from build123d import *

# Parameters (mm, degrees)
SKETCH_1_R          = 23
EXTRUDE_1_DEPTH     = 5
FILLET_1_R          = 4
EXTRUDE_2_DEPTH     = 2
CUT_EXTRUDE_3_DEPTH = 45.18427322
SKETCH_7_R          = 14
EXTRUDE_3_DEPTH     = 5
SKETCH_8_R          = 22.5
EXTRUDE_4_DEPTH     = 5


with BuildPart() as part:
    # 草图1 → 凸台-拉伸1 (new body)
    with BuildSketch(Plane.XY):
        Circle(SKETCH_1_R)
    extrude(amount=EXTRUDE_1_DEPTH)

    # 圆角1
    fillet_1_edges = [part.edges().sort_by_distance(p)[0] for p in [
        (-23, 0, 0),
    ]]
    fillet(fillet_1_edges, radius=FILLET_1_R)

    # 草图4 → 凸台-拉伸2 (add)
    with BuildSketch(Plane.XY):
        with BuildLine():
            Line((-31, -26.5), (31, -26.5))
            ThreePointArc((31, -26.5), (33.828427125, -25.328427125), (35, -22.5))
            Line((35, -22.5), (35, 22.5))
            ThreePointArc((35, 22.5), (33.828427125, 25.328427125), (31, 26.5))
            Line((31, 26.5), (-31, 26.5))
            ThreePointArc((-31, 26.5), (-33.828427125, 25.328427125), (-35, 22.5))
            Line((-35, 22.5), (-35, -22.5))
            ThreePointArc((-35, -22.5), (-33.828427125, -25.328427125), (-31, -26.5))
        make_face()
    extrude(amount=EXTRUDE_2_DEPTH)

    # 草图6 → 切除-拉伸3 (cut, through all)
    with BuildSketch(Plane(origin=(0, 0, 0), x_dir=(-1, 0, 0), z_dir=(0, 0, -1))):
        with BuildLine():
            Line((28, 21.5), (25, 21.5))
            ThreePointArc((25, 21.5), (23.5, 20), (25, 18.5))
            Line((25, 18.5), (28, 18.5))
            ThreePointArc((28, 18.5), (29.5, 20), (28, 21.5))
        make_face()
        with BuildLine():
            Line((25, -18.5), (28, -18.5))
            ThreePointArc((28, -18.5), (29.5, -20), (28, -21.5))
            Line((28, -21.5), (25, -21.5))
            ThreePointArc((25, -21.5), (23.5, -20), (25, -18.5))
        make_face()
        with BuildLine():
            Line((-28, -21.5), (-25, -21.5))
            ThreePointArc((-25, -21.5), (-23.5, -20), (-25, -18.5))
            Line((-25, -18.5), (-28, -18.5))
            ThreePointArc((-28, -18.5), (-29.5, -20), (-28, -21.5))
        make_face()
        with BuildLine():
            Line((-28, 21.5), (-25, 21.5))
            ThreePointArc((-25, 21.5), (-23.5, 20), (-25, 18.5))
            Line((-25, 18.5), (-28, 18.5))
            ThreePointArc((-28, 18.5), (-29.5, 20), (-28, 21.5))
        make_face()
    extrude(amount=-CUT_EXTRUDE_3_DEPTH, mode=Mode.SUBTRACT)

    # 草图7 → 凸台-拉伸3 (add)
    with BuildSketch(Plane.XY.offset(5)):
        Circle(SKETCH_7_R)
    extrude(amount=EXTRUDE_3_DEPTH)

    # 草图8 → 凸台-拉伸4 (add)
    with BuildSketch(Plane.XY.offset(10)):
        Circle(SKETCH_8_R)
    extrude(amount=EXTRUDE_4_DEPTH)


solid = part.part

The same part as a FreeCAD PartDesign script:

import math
import FreeCAD as App
import Part
import Sketcher
from FreeCAD import Vector


def edges_at(feature, points):
    """Names of the edges that pass closest to the given points."""
    edges = feature.Shape.Edges
    near = lambda p: min(range(len(edges)), key=lambda i: edges[i].distToShape(Part.Vertex(*p))[0])
    return sorted({f"Edge{near(p) + 1}" for p in points})

doc = App.newDocument("Part")
params = doc.addObject("Spreadsheet::Sheet", "Params")
for row, (alias, value) in enumerate([
    ("sketch1_diameter", "46 mm"),
    ("pad1_length", "5 mm"),
    ("fillet_radius", "4 mm"),
    ("sketch2_radius", "4 mm"),
    ("sketch2_width", "62 mm"),
    ("sketch2_height", "45 mm"),
    ("pad2_length", "2 mm"),
    ("sketch3_radius", "1.5 mm"),
    ("sketch3_width", "3 mm"),
    ("sketch4_diameter", "28 mm"),
    ("pad3_length", "5 mm"),
    ("sketch5_diameter", "45 mm"),
    ("pad4_length", "5 mm"),
], start=1):
    params.set(f"A{row}", alias)
    params.set(f"B{row}", "=" + value)
    params.setAlias(f"B{row}", alias)

body = doc.addObject("PartDesign::Body", "Body")

sketch1 = body.newObject("Sketcher::SketchObject", "Sketch")
sketch1.AttachmentSupport = (doc.getObject("XY_Plane"), [""])
sketch1.MapMode = "FlatFace"
sketch1.addGeometry(Part.Circle(Vector(0, 0, 0), Vector(0, 0, 1), 23), False)
sketch1.addConstraint([
    Sketcher.Constraint("Coincident", 0, 3, -1, 1),
    Sketcher.Constraint("Diameter", 0, 46.0),
])
sketch1.setExpression("Constraints[1]", "Params.sketch1_diameter")
pad1 = body.newObject("PartDesign::Pad", "Pad")
pad1.Profile = sketch1
pad1.setExpression("Length", "Params.pad1_length")
doc.recompute()

fillet = body.newObject("PartDesign::Fillet", "Fillet")
fillet.Base = (pad1, edges_at(pad1, [(-23, 0, 0)]))
fillet.setExpression("Radius", "Params.fillet_radius")

sketch2 = body.newObject("Sketcher::SketchObject", "Sketch001")
sketch2.AttachmentSupport = (doc.getObject("XY_Plane"), [""])
sketch2.MapMode = "FlatFace"
sketch2.addGeometry([
    Part.LineSegment(Vector(-31, -26.5, 0), Vector(31, -26.5, 0)),
    Part.ArcOfCircle(Part.Circle(Vector(31, -22.5, 0), Vector(0, 0, 1), 4), math.radians(-90), math.radians(0)),
    Part.LineSegment(Vector(35, -22.5, 0), Vector(35, 22.5, 0)),
    Part.ArcOfCircle(Part.Circle(Vector(31, 22.5, 0), Vector(0, 0, 1), 4), math.radians(0), math.radians(90)),
    Part.LineSegment(Vector(31, 26.5, 0), Vector(-31, 26.5, 0)),
    Part.ArcOfCircle(Part.Circle(Vector(-31, 22.5, 0), Vector(0, 0, 1), 4), math.radians(90), math.radians(180)),
    Part.LineSegment(Vector(-35, 22.5, 0), Vector(-35, -22.5, 0)),
    Part.ArcOfCircle(Part.Circle(Vector(-31, -22.5, 0), Vector(0, 0, 1), 4), math.radians(180), math.radians(270)),
], False)
sketch2.addConstraint([
    Sketcher.Constraint("Tangent", 0, 2, 1, 1),
    Sketcher.Constraint("Tangent", 1, 2, 2, 1),
    Sketcher.Constraint("Tangent", 2, 2, 3, 1),
    Sketcher.Constraint("Tangent", 3, 2, 4, 1),
    Sketcher.Constraint("Tangent", 4, 2, 5, 1),
    Sketcher.Constraint("Tangent", 5, 2, 6, 1),
    Sketcher.Constraint("Tangent", 6, 2, 7, 1),
    Sketcher.Constraint("Tangent", 7, 2, 0, 1),
    Sketcher.Constraint("Horizontal", 0),
    Sketcher.Constraint("Vertical", 2),
    Sketcher.Constraint("Horizontal", 4),
    Sketcher.Constraint("Vertical", 6),
    Sketcher.Constraint("Equal", 1, 3),
    Sketcher.Constraint("Equal", 3, 5),
    Sketcher.Constraint("Equal", 5, 7),
    Sketcher.Constraint("Symmetric", 1, 3, 5, 3, -1, 1),
    Sketcher.Constraint("Radius", 1, 4.0),
    Sketcher.Constraint("DistanceX", 0, 1, 0, 2, 62.0),
    Sketcher.Constraint("DistanceY", 2, 1, 2, 2, 45.0),
])
sketch2.setExpression("Constraints[16]", "Params.sketch2_radius")
sketch2.setExpression("Constraints[17]", "Params.sketch2_width")
sketch2.setExpression("Constraints[18]", "Params.sketch2_height")
pad2 = body.newObject("PartDesign::Pad", "Pad001")
pad2.Profile = sketch2
pad2.setExpression("Length", "Params.pad2_length")

sketch3 = body.newObject("Sketcher::SketchObject", "Sketch002")
sketch3.AttachmentSupport = (doc.getObject("XY_Plane"), [""])
sketch3.MapMode = "FlatFace"
sketch3.addGeometry([
    Part.LineSegment(Vector(-28, 21.5, 0), Vector(-25, 21.5, 0)),
    Part.ArcOfCircle(Part.Circle(Vector(-25, 20, 0), Vector(0, 0, 1), 1.5), math.radians(-90), math.radians(90)),
    Part.LineSegment(Vector(-25, 18.5, 0), Vector(-28, 18.5, 0)),
    Part.ArcOfCircle(Part.Circle(Vector(-28, 20, 0), Vector(0, 0, 1), 1.5), math.radians(90), math.radians(270)),
    Part.LineSegment(Vector(-28, -18.5, 0), Vector(-25, -18.5, 0)),
    Part.ArcOfCircle(Part.Circle(Vector(-25, -20, 0), Vector(0, 0, 1), 1.5), math.radians(-90), math.radians(90)),
    Part.LineSegment(Vector(-25, -21.5, 0), Vector(-28, -21.5, 0)),
    Part.ArcOfCircle(Part.Circle(Vector(-28, -20, 0), Vector(0, 0, 1), 1.5), math.radians(90), math.radians(270)),
    Part.LineSegment(Vector(28, -21.5, 0), Vector(25, -21.5, 0)),
    Part.ArcOfCircle(Part.Circle(Vector(25, -20, 0), Vector(0, 0, 1), 1.5), math.radians(90), math.radians(270)),
    Part.LineSegment(Vector(25, -18.5, 0), Vector(28, -18.5, 0)),
    Part.ArcOfCircle(Part.Circle(Vector(28, -20, 0), Vector(0, 0, 1), 1.5), math.radians(-90), math.radians(90)),
    Part.LineSegment(Vector(25, 21.5, 0), Vector(28, 21.5, 0)),
    Part.ArcOfCircle(Part.Circle(Vector(28, 20, 0), Vector(0, 0, 1), 1.5), math.radians(-90), math.radians(90)),
    Part.LineSegment(Vector(28, 18.5, 0), Vector(25, 18.5, 0)),
    Part.ArcOfCircle(Part.Circle(Vector(25, 20, 0), Vector(0, 0, 1), 1.5), math.radians(90), math.radians(270)),
], False)
sketch3.addConstraint([
    Sketcher.Constraint("Tangent", 0, 2, 1, 2),
    Sketcher.Constraint("Tangent", 1, 1, 2, 1),
    Sketcher.Constraint("Tangent", 2, 2, 3, 2),
    Sketcher.Constraint("Tangent", 3, 1, 0, 1),
    Sketcher.Constraint("Tangent", 4, 2, 5, 2),
    Sketcher.Constraint("Tangent", 5, 1, 6, 1),
    Sketcher.Constraint("Tangent", 6, 2, 7, 2),
    Sketcher.Constraint("Tangent", 7, 1, 4, 1),
    Sketcher.Constraint("Tangent", 8, 2, 9, 2),
    Sketcher.Constraint("Tangent", 9, 1, 10, 1),
    Sketcher.Constraint("Tangent", 10, 2, 11, 2),
    Sketcher.Constraint("Tangent", 11, 1, 8, 1),
    Sketcher.Constraint("Tangent", 12, 2, 13, 2),
    Sketcher.Constraint("Tangent", 13, 1, 14, 1),
    Sketcher.Constraint("Tangent", 14, 2, 15, 2),
    Sketcher.Constraint("Tangent", 15, 1, 12, 1),
    Sketcher.Constraint("Horizontal", 0),
    Sketcher.Constraint("Horizontal", 2),
    Sketcher.Constraint("Horizontal", 4),
    Sketcher.Constraint("Horizontal", 6),
    Sketcher.Constraint("Horizontal", 8),
    Sketcher.Constraint("Horizontal", 10),
    Sketcher.Constraint("Horizontal", 12),
    Sketcher.Constraint("Horizontal", 14),
    Sketcher.Constraint("Equal", 3, 5),
    Sketcher.Constraint("Equal", 7, 9),
    Sketcher.Constraint("Equal", 11, 13),
    Sketcher.Constraint("Symmetric", 1, 3, 9, 3, -1, 1),
    Sketcher.Constraint("Symmetric", 7, 3, 13, 3, -1, 1),
    Sketcher.Constraint("Symmetric", 5, 3, 9, 3, -2),
    Sketcher.Constraint("Vertical", 3, 3, 7, 3),
    Sketcher.Constraint("Vertical", 11, 3, 13, 3),
    Sketcher.Constraint("Vertical", 9, 3, 15, 3),
    Sketcher.Constraint("Radius", 1, 1.5),
    Sketcher.Constraint("DistanceX", 0, 1, 0, 2, 3.0),
    Sketcher.Constraint("DistanceX", 1, 3, -1, 1, 25.0),
    Sketcher.Constraint("DistanceY", -1, 1, 1, 3, 20.0),
])
sketch3.setExpression("Constraints[33]", "Params.sketch3_radius")
sketch3.setExpression("Constraints[34]", "Params.sketch3_width")
pocket1 = body.newObject("PartDesign::Pocket", "Pocket")
pocket1.Profile = sketch3
pocket1.Type = "ThroughAll"
pocket1.Reversed = True

sketch4 = body.newObject("Sketcher::SketchObject", "Sketch003")
sketch4.AttachmentSupport = (doc.getObject("XY_Plane"), [""])
sketch4.MapMode = "FlatFace"
sketch4.AttachmentOffset = App.Placement(Vector(0, 0, 5), App.Rotation())
sketch4.addGeometry(Part.Circle(Vector(0, 0, 0), Vector(0, 0, 1), 14), False)
sketch4.addConstraint([
    Sketcher.Constraint("Coincident", 0, 3, -1, 1),
    Sketcher.Constraint("Diameter", 0, 28.0),
])
sketch4.setExpression("Constraints[1]", "Params.sketch4_diameter")
pad3 = body.newObject("PartDesign::Pad", "Pad002")
pad3.Profile = sketch4
pad3.setExpression("Length", "Params.pad3_length")

sketch5 = body.newObject("Sketcher::SketchObject", "Sketch004")
sketch5.AttachmentSupport = (doc.getObject("XY_Plane"), [""])
sketch5.MapMode = "FlatFace"
sketch5.AttachmentOffset = App.Placement(Vector(0, 0, 10), App.Rotation())
sketch5.addGeometry(Part.Circle(Vector(0, 0, 0), Vector(0, 0, 1), 22), False)
sketch5.addConstraint([
    Sketcher.Constraint("Coincident", 0, 3, -1, 1),
    Sketcher.Constraint("Diameter", 0, 45.0),
])
sketch5.setExpression("Constraints[1]", "Params.sketch5_diameter")
pad4 = body.newObject("PartDesign::Pad", "Pad003")
pad4.Profile = sketch5
pad4.setExpression("Length", "Params.pad4_length")

doc.recompute()
